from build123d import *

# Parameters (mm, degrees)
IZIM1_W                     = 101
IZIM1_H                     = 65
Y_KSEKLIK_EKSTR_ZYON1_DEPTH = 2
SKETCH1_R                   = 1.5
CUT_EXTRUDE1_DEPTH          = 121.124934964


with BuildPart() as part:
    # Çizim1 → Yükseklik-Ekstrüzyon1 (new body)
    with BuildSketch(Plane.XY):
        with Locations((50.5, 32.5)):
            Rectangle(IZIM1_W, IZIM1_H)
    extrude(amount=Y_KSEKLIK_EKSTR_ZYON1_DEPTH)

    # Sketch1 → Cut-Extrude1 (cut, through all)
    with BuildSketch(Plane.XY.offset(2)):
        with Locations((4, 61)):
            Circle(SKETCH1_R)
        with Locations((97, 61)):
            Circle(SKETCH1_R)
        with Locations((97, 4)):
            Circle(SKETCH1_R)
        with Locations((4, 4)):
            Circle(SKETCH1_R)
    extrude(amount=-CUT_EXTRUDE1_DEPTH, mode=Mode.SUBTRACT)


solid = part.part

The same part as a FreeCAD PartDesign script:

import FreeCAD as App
import Part
import Sketcher

V = App.Vector

doc = App.newDocument("Part")
body = doc.addObject("PartDesign::Body", "Body")

sketch1 = doc.addObject("Sketcher::SketchObject", "Sketch")
body.addObject(sketch1)
sketch1.AttachmentSupport = (doc.XY_Plane, [""])
sketch1.MapMode = "FlatFace"
sketch1.addGeometry([
    Part.LineSegment(V(0, 65, 0), V(0, 0, 0)),
    Part.LineSegment(V(0, 0, 0), V(101, 0, 0)),
    Part.LineSegment(V(101, 0, 0), V(101, 65, 0)),
    Part.LineSegment(V(101, 65, 0), V(0, 65, 0)),
], False)
sketch1.addConstraint([
    Sketcher.Constraint("Coincident", 0, 2, 1, 1),
    Sketcher.Constraint("Coincident", 1, 2, 2, 1),
    Sketcher.Constraint("Coincident", 2, 2, 3, 1),
    Sketcher.Constraint("Coincident", 3, 2, 0, 1),
    Sketcher.Constraint("Vertical", 0),
    Sketcher.Constraint("Horizontal", 1),
    Sketcher.Constraint("Vertical", 2),
    Sketcher.Constraint("Horizontal", 3),
    Sketcher.Constraint("Coincident", 0, 2, -1, 1),
    Sketcher.Constraint("DistanceX", 1, 1, 1, 2, 101.0),
    Sketcher.Constraint("DistanceY", 0, 2, 0, 1, 65.0),
])
pad1 = doc.addObject("PartDesign::Pad", "Pad")
body.addObject(pad1)
pad1.Profile = sketch1
pad1.Length = 2

sketch2 = doc.addObject("Sketcher::SketchObject", "Sketch001")
body.addObject(sketch2)
sketch2.AttachmentSupport = (doc.XY_Plane, [""])
sketch2.MapMode = "FlatFace"
sketch2.AttachmentOffset = App.Placement(V(0, 0, 2), App.Rotation())
sketch2.addGeometry([
    Part.Circle(V(4, 61, 0), V(0, 0, 1), 1.5),
    Part.Circle(V(97, 61, 0), V(0, 0, 1), 1.5),
    Part.Circle(V(97, 4, 0), V(0, 0, 1), 1.5),
    Part.Circle(V(4, 4, 0), V(0, 0, 1), 1.5),
], False)
sketch2.addConstraint([
    Sketcher.Constraint("Equal", 0, 1),
    Sketcher.Constraint("Equal", 1, 2),
    Sketcher.Constraint("Equal", 2, 3),
    Sketcher.Constraint("Horizontal", 0, 3, 1, 3),
    Sketcher.Constraint("Horizontal", 2, 3, 3, 3),
    Sketcher.Constraint("Vertical", 1, 3, 2, 3),
    Sketcher.Constraint("Vertical", 0, 3, 3, 3),
    Sketcher.Constraint("Diameter", 0, 3.0),
    Sketcher.Constraint("DistanceX", -1, 1, 0, 3, 4.0),
    Sketcher.Constraint("DistanceY", -1, 1, 0, 3, 61.0),
    Sketcher.Constraint("DistanceX", -1, 1, 1, 3, 97.0),
    Sketcher.Constraint("DistanceY", -1, 1, 2, 3, 4.0),
])
pocket1 = doc.addObject("PartDesign::Pocket", "Pocket")
body.addObject(pocket1)
pocket1.Profile = sketch2
pocket1.Type = "ThroughAll"

doc.recompute()
